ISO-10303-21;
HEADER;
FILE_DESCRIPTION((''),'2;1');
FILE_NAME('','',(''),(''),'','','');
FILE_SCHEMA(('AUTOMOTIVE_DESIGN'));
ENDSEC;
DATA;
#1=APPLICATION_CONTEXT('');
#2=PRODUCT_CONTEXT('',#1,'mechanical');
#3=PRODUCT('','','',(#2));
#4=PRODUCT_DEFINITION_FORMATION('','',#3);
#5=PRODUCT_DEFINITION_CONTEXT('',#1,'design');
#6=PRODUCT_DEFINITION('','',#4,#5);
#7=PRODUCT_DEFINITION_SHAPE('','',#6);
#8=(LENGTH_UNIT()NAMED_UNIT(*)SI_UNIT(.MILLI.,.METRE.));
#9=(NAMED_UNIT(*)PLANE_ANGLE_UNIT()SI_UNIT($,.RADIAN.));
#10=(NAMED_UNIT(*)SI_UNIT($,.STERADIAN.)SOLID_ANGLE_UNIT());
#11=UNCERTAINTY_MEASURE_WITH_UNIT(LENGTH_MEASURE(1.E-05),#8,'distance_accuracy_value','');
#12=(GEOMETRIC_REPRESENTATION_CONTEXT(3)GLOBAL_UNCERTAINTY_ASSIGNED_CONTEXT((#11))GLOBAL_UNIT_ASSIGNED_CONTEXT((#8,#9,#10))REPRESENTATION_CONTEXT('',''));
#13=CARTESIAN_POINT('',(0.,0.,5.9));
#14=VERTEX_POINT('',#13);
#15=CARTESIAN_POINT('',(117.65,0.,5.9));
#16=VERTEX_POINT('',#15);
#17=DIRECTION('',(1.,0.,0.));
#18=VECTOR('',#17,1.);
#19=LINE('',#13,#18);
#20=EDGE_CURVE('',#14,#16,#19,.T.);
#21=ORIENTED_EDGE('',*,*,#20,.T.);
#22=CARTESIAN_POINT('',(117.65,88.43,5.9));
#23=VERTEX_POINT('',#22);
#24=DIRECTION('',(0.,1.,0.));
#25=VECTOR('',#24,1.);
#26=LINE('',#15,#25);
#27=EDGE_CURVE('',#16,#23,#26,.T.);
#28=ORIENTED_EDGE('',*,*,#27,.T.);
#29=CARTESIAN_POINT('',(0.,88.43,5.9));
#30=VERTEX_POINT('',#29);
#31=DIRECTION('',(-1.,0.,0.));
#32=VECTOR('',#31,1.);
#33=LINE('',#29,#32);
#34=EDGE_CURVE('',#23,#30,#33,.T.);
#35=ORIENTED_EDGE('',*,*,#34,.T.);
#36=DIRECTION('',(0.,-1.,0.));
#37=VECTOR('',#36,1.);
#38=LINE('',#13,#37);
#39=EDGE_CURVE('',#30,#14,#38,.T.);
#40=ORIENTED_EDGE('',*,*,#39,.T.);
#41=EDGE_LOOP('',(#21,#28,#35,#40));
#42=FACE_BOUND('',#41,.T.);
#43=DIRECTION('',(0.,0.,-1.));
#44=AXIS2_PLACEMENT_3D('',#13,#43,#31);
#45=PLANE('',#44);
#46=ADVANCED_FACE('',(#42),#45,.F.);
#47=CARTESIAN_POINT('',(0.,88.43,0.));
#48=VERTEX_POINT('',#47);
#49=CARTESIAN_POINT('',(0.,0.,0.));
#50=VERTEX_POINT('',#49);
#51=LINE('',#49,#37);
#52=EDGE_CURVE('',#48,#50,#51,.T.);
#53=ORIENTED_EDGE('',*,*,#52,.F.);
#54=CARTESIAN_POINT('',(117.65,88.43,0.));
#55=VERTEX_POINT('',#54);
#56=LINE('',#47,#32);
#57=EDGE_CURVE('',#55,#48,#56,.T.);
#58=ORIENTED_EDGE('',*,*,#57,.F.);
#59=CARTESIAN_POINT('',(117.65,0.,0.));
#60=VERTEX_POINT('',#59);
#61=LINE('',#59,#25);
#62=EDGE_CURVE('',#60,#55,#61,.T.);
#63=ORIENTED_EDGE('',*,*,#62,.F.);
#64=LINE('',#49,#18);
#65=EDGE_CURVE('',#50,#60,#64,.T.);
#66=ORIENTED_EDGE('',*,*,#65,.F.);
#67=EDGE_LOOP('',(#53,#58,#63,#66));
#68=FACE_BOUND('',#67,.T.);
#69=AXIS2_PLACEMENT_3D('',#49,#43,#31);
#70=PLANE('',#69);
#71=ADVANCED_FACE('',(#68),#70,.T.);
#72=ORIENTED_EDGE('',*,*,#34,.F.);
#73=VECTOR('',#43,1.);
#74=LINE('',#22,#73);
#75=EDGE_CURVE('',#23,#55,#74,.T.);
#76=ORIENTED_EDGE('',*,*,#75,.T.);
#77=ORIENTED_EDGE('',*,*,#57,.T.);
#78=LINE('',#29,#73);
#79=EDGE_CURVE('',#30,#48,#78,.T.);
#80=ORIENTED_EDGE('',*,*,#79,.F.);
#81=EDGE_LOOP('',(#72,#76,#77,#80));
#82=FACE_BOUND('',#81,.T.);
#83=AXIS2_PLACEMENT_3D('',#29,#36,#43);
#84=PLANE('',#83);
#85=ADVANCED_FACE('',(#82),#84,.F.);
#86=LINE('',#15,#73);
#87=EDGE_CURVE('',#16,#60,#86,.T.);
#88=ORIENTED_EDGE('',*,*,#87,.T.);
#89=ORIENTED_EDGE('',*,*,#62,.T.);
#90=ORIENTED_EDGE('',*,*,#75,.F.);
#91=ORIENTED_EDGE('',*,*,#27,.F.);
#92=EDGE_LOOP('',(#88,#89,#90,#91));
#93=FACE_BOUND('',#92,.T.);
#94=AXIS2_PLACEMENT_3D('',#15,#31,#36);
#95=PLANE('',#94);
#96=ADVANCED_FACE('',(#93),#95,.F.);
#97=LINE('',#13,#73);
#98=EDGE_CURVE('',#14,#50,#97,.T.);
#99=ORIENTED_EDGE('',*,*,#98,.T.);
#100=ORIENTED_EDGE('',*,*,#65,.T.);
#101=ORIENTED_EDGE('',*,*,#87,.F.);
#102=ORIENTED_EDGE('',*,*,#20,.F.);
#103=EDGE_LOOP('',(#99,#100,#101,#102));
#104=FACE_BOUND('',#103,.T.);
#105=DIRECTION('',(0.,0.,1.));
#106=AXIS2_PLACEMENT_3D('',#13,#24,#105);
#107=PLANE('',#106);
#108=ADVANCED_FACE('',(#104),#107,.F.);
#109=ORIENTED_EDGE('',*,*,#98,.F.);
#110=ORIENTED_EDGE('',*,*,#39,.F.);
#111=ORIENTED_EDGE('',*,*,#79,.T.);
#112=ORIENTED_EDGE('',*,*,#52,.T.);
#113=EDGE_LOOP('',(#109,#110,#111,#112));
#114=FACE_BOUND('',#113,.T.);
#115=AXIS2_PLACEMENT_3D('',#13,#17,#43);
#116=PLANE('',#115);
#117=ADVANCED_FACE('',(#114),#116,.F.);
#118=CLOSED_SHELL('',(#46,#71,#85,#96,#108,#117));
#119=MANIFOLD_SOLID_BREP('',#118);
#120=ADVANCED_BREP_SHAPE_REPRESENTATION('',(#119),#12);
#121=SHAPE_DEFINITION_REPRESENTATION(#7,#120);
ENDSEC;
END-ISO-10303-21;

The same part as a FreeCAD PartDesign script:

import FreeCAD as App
import Part
import Sketcher
from FreeCAD import Vector
Q = App.Units.Quantity


def add_polygon(sketch, points):
    """Adds a closed chain of lines whose ends are joined by coincident constraints."""
    first, n = sketch.GeometryCount, len(points)
    for a, b in zip(points, points[1:] + points[:1]):
        sketch.addGeometry(Part.LineSegment(App.Vector(*a, 0), App.Vector(*b, 0)), False)
    for i in range(n):
        sketch.addConstraint(Sketcher.Constraint("Coincident", first + i, 2, first + (i + 1) % n, 1))

doc = App.newDocument("Part")
body = doc.addObject("PartDesign::Body", "Body")

# Sketch on XY plane
sketch1 = body.newObject("Sketcher::SketchObject", "Sketch")
sketch1.AttachmentSupport = (doc.getObject("XY_Plane"), [""])
sketch1.MapMode = "FlatFace"
add_polygon(sketch1, [(0, 88), (0, 0), (118, 0), (118, 88)])  # lines 0-3
sketch1.addConstraint([
    Sketcher.Constraint("Vertical", 0),
    Sketcher.Constraint("Horizontal", 1),
    Sketcher.Constraint("Vertical", 2),
    Sketcher.Constraint("Horizontal", 3),
    Sketcher.Constraint("Coincident", 0, 2, -1, 1),
    Sketcher.Constraint("DistanceX", 1, 1, 1, 2, Q("117.65 mm")),
    Sketcher.Constraint("DistanceY", 0, 2, 0, 1, Q("88.43 mm")),
])
pad1 = body.newObject("PartDesign::Pad", "Pad")
pad1.Profile = sketch1
pad1.Length = 5.9

doc.recompute()
